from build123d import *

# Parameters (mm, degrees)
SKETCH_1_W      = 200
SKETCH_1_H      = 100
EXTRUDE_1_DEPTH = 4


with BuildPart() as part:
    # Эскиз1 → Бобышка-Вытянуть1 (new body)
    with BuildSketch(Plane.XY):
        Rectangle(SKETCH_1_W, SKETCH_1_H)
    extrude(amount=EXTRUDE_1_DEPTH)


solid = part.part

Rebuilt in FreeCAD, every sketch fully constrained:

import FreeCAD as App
import Part
import Sketcher


def add_polygon(sketch, points):
    """Adds a closed chain of lines whose ends are joined by coincident constraints."""
    first, n = sketch.GeometryCount, len(points)
    for a, b in zip(points, points[1:] + points[:1]):
        sketch.addGeometry(Part.LineSegment(App.Vector(*a, 0), App.Vector(*b, 0)), False)
    for i in range(n):
        sketch.addConstraint(Sketcher.Constraint("Coincident", first + i, 2, first + (i + 1) % n, 1))

doc = App.newDocument("Part")
body = doc.addObject("PartDesign::Body", "Body")

# Sketch on XY plane
sketch1 = body.newObject("Sketcher::SketchObject", "Sketch")
sketch1.AttachmentSupport = (doc.getObject("XY_Plane"), [""])
sketch1.MapMode = "FlatFace"
add_polygon(sketch1, [(-100, 50), (-100, -50), (100, -50), (100, 50)])  # lines 0-3
sketch1.addConstraint([
    Sketcher.Constraint("Vertical", 0),
    Sketcher.Constraint("Horizontal", 1),
    Sketcher.Constraint("Vertical", 2),
    Sketcher.Constraint("Horizontal", 3),
    Sketcher.Constraint("Symmetric", 0, 2, 2, 2, -1, 1),
    Sketcher.Constraint("DistanceX", 1, 1, 1, 2, 200.0),
    Sketcher.Constraint("DistanceY", 0, 2, 0, 1, 100.0),
])
pad1 = body.newObject("PartDesign::Pad", "Pad")
pad1.Profile = sketch1
pad1.Length = 4

doc.recompute()
